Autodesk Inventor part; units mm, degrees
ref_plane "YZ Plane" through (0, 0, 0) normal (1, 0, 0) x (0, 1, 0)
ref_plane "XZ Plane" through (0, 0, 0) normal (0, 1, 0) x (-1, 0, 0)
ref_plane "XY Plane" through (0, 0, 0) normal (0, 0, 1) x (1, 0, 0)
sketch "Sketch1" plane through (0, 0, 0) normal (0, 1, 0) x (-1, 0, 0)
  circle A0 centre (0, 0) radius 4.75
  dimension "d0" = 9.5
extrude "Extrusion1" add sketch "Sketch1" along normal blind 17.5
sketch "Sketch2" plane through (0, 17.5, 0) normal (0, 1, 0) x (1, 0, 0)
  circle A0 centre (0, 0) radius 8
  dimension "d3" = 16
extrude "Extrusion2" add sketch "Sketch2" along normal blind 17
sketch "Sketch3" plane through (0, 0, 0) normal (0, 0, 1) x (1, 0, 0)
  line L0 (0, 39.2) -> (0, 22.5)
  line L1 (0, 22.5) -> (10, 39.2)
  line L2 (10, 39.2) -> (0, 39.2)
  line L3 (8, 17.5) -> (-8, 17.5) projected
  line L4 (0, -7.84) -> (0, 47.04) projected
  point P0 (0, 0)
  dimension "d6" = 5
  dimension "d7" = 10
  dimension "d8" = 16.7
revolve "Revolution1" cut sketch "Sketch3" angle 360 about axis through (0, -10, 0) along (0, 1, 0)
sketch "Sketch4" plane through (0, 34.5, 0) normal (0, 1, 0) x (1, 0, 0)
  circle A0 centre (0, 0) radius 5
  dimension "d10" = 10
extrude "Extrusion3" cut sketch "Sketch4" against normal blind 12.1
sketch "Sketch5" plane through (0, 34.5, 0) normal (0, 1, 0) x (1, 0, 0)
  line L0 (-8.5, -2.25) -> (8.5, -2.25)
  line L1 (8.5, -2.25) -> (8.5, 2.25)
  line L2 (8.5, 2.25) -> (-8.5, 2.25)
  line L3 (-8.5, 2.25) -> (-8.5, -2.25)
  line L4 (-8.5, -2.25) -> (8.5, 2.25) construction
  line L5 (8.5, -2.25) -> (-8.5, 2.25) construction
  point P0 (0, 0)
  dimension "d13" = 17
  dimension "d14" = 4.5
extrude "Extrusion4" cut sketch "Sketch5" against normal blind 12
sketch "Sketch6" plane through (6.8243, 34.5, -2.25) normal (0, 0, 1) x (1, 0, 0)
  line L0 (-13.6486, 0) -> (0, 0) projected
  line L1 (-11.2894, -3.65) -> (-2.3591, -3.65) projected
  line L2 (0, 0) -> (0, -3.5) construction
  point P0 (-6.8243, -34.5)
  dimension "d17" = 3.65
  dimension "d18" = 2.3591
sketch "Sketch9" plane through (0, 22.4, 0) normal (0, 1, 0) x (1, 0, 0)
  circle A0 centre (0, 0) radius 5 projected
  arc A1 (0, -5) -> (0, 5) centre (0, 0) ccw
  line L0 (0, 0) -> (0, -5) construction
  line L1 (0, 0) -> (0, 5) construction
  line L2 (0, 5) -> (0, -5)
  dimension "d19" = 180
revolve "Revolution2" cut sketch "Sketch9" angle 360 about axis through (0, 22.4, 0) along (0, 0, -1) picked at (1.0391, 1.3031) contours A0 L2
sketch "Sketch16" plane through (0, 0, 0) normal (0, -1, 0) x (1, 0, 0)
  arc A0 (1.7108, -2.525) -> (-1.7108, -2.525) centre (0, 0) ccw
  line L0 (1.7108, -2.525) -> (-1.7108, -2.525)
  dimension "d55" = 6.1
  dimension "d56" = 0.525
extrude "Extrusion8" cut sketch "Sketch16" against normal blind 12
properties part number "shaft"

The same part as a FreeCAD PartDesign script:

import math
import FreeCAD as App
import Part
import Sketcher
from FreeCAD import Vector
Q = App.Units.Quantity


def add_polygon(sketch, points):
    """Adds a closed chain of lines whose ends are joined by coincident constraints."""
    first, n = sketch.GeometryCount, len(points)
    for a, b in zip(points, points[1:] + points[:1]):
        sketch.addGeometry(Part.LineSegment(App.Vector(*a, 0), App.Vector(*b, 0)), False)
    for i in range(n):
        sketch.addConstraint(Sketcher.Constraint("Coincident", first + i, 2, first + (i + 1) % n, 1))

doc = App.newDocument("Part")
params = doc.addObject("Spreadsheet::Sheet", "Params")
for row, (alias, value) in enumerate([
    ("sketch1_diameter", "9.5 mm"),
    ("pad1_length", "17.5 mm"),
    ("sketch2_diameter", "16 mm"),
    ("pad2_length", "17 mm"),
    ("sketch3_width", "10 mm"),
    ("sketch3_height", "16.7 mm"),
    ("groove_angle", "360 deg"),
    ("sketch4_diameter", "10 mm"),
    ("pocket1_length", "12.1 mm"),
    ("sketch5_width", "17 mm"),
    ("sketch5_height", "4.5 mm"),
    ("pocket2_length", "12 mm"),
    ("sketch6_radius", "5 mm"),
    ("groove2_angle", "360 deg"),
    ("sketch7_radius", "3.05 mm"),
    ("pocket3_length", "12 mm"),
], start=1):
    params.set(f"A{row}", alias)
    params.set(f"B{row}", "=" + value)
    params.setAlias(f"B{row}", alias)

body = doc.addObject("PartDesign::Body", "Body")

# Sketch on XZ plane
sketch1 = body.newObject("Sketcher::SketchObject", "Sketch")
sketch1.AttachmentSupport = (doc.getObject("XZ_Plane"), [""])
sketch1.MapMode = "FlatFace"
sketch1.addGeometry(Part.Circle(Vector(0, 0, 0), Vector(0, 0, 1), 4.8), False)
sketch1.addConstraint([
    Sketcher.Constraint("Coincident", 0, 3, -1, 1),
    Sketcher.Constraint("Diameter", 0, Q("9.5 mm")),
])
sketch1.setExpression("Constraints[1]", "Params.sketch1_diameter")
pad1 = body.newObject("PartDesign::Pad", "Pad")
pad1.Profile = sketch1
pad1.setExpression("Length", "Params.pad1_length")
pad1.Reversed = True

# Sketch on XZ plane
sketch2 = body.newObject("Sketcher::SketchObject", "Sketch001")
sketch2.AttachmentSupport = (doc.getObject("XZ_Plane"), [""])
sketch2.MapMode = "FlatFace"
sketch2.AttachmentOffset = App.Placement(Vector(0, 0, -17.5), App.Rotation())
sketch2.addGeometry(Part.Circle(Vector(0, 0, 0), Vector(0, 0, 1), 8), False)
sketch2.addConstraint([
    Sketcher.Constraint("Coincident", 0, 3, -1, 1),
    Sketcher.Constraint("Diameter", 0, Q("16 mm")),
])
sketch2.setExpression("Constraints[1]", "Params.sketch2_diameter")
pad2 = body.newObject("PartDesign::Pad", "Pad001")
pad2.Profile = sketch2
pad2.setExpression("Length", "Params.pad2_length")
pad2.Reversed = True

# Sketch on XY plane
sketch3 = body.newObject("Sketcher::SketchObject", "Sketch002")
sketch3.AttachmentSupport = (doc.getObject("XY_Plane"), [""])
sketch3.MapMode = "FlatFace"
add_polygon(sketch3, [(10, 39), (0, 39), (0, 22)])  # lines 0-2
sketch3.addConstraint([
    Sketcher.Constraint("Horizontal", 0),
    Sketcher.Constraint("Vertical", 1),
    Sketcher.Constraint("PointOnObject", 0, 2, -2),
    Sketcher.Constraint("DistanceX", 0, 2, 0, 1, Q("10 mm")),
    Sketcher.Constraint("DistanceY", 1, 2, 1, 1, Q("16.7 mm")),
    Sketcher.Constraint("DistanceY", -1, 1, 0, 2, Q("39.2 mm")),
])
sketch3.setExpression("Constraints[6]", "Params.sketch3_width")
sketch3.setExpression("Constraints[7]", "Params.sketch3_height")
groove = body.newObject("PartDesign::Groove", "Groove")
groove.Profile = sketch3
groove.ReferenceAxis = (sketch3, ["V_Axis"])
groove.setExpression("Angle", "Params.groove_angle")

# Sketch on XZ plane
sketch4 = body.newObject("Sketcher::SketchObject", "Sketch003")
sketch4.AttachmentSupport = (doc.getObject("XZ_Plane"), [""])
sketch4.MapMode = "FlatFace"
sketch4.AttachmentOffset = App.Placement(Vector(0, 0, -34.5), App.Rotation())
sketch4.addGeometry(Part.Circle(Vector(0, 0, 0), Vector(0, 0, 1), 5), False)
sketch4.addConstraint([
    Sketcher.Constraint("Coincident", 0, 3, -1, 1),
    Sketcher.Constraint("Diameter", 0, Q("10 mm")),
])
sketch4.setExpression("Constraints[1]", "Params.sketch4_diameter")
pocket1 = body.newObject("PartDesign::Pocket", "Pocket")
pocket1.Profile = sketch4
pocket1.setExpression("Length", "Params.pocket1_length")
pocket1.Reversed = True

# Sketch on XZ plane
sketch5 = body.newObject("Sketcher::SketchObject", "Sketch004")
sketch5.AttachmentSupport = (doc.getObject("XZ_Plane"), [""])
sketch5.MapMode = "FlatFace"
sketch5.AttachmentOffset = App.Placement(Vector(0, 0, -34.5), App.Rotation())
add_polygon(sketch5, [(-8.5, -2.2), (-8.5, 2.2), (8.5, 2.2), (8.5, -2.2)])  # lines 0-3
sketch5.addConstraint([
    Sketcher.Constraint("Vertical", 0),
    Sketcher.Constraint("Horizontal", 1),
    Sketcher.Constraint("Vertical", 2),
    Sketcher.Constraint("Horizontal", 3),
    Sketcher.Constraint("Symmetric", 0, 2, 2, 2, -1, 1),
    Sketcher.Constraint("DistanceX", 1, 1, 1, 2, Q("17 mm")),
    Sketcher.Constraint("DistanceY", 0, 1, 0, 2, Q("4.5 mm")),
])
sketch5.setExpression("Constraints[9]", "Params.sketch5_width")
sketch5.setExpression("Constraints[10]", "Params.sketch5_height")
pocket2 = body.newObject("PartDesign::Pocket", "Pocket001")
pocket2.Profile = sketch5
pocket2.setExpression("Length", "Params.pocket2_length")
pocket2.Reversed = True

# Sketch on XZ plane
sketch6 = body.newObject("Sketcher::SketchObject", "Sketch005")
sketch6.AttachmentSupport = (doc.getObject("XZ_Plane"), [""])
sketch6.MapMode = "FlatFace"
sketch6.AttachmentOffset = App.Placement(Vector(0, 0, -22.4), App.Rotation())
sketch6.addGeometry([
    Part.ArcOfCircle(Part.Circle(Vector(0, 0, 0), Vector(0, 0, 1), 5), math.radians(-90), math.radians(90)),
    Part.LineSegment(Vector(0, -5, 0), Vector(0, 5, 0)),
], False)
sketch6.addConstraint([
    Sketcher.Constraint("Coincident", 0, 1, 1, 1),
    Sketcher.Constraint("Coincident", 1, 2, 0, 2),
    Sketcher.Constraint("Vertical", 1),
    Sketcher.Constraint("Coincident", 0, 3, -1, 1),
    Sketcher.Constraint("PointOnObject", 0, 1, -2),
    Sketcher.Constraint("Radius", 0, Q("5 mm")),
])
sketch6.setExpression("Constraints[5]", "Params.sketch6_radius")
groove2 = body.newObject("PartDesign::Groove", "Groove001")
groove2.Profile = sketch6
groove2.ReferenceAxis = (sketch6, ["V_Axis"])
groove2.setExpression("Angle", "Params.groove2_angle")

# Sketch on XZ plane
sketch7 = body.newObject("Sketcher::SketchObject", "Sketch006")
sketch7.AttachmentSupport = (doc.getObject("XZ_Plane"), [""])
sketch7.MapMode = "FlatFace"
sketch7.addGeometry([
    Part.LineSegment(Vector(-1.7, -2.5, 0), Vector(1.7, -2.5, 0)),
    Part.ArcOfCircle(Part.Circle(Vector(0, 0, 0), Vector(0, 0, 1), 3), math.radians(-56), math.radians(236)),
], False)
sketch7.addConstraint([
    Sketcher.Constraint("Coincident", 0, 1, 1, 2),
    Sketcher.Constraint("Coincident", 1, 1, 0, 2),
    Sketcher.Constraint("Horizontal", 0),
    Sketcher.Constraint("Coincident", 1, 3, -1, 1),
    Sketcher.Constraint("Radius", 1, Q("3.05 mm")),
    Sketcher.Constraint("DistanceX", 0, 1, 0, 2, Q("3.4216 mm")),
])
sketch7.setExpression("Constraints[4]", "Params.sketch7_radius")
pocket3 = body.newObject("PartDesign::Pocket", "Pocket002")
pocket3.Profile = sketch7
pocket3.setExpression("Length", "Params.pocket3_length")

doc.recompute()
